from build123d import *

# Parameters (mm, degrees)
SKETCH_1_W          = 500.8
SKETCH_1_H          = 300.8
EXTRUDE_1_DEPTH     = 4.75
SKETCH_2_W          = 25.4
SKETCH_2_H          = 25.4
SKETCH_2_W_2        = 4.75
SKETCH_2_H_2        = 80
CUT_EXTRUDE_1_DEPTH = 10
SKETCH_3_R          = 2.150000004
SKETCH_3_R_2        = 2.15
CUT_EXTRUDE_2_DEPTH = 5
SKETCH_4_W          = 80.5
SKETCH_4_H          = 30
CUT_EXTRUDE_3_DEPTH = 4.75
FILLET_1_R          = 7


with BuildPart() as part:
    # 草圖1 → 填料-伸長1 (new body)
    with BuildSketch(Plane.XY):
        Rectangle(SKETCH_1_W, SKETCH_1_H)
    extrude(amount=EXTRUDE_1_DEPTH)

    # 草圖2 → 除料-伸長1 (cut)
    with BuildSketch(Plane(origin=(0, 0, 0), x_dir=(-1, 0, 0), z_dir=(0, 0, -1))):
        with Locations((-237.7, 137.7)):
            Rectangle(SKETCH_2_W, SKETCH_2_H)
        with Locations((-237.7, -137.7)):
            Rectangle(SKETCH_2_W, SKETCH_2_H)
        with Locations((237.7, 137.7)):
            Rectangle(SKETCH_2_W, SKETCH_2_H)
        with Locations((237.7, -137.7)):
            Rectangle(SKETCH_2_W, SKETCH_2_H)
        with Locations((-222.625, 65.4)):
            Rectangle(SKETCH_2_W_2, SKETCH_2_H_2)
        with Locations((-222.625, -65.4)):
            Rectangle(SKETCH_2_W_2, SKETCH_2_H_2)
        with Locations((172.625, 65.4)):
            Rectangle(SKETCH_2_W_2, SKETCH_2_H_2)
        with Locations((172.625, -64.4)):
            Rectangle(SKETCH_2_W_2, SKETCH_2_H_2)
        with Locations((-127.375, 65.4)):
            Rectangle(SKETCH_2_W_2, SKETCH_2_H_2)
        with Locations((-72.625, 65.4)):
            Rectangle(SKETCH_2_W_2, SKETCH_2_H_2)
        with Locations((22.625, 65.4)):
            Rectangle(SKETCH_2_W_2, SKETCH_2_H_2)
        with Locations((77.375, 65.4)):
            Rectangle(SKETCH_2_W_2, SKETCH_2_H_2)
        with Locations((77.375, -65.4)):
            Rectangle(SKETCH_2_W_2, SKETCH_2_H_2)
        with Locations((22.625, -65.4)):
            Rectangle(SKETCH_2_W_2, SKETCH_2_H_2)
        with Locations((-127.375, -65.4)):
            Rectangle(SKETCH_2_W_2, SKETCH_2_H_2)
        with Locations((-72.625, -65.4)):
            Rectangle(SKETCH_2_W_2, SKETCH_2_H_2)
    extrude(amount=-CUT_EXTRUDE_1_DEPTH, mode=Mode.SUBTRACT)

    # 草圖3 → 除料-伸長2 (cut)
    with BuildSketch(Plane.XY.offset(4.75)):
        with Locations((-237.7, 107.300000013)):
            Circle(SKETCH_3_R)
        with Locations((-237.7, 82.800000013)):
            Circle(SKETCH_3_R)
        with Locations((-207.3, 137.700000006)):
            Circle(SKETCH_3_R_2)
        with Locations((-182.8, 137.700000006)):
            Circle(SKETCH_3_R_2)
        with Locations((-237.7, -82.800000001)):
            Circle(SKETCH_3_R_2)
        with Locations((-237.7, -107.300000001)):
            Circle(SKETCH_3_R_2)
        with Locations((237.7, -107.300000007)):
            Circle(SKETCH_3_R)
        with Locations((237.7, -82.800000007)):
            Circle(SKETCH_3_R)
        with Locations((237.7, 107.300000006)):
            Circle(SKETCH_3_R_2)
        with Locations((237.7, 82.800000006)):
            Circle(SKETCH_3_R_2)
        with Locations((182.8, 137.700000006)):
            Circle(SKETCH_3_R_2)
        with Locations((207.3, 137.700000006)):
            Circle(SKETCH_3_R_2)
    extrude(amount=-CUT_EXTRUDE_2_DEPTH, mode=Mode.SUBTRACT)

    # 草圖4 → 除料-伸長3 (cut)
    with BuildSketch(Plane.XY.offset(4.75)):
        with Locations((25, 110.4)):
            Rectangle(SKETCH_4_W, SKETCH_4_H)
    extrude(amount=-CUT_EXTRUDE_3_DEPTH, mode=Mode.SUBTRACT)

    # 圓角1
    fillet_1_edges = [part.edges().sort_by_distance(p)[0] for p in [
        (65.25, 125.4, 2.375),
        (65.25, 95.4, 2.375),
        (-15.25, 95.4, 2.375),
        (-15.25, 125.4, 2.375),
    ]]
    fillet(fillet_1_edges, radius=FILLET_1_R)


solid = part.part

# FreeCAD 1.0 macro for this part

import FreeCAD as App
import Part
import Sketcher


def edges_at(feature, points):
    """Names of the edges that pass closest to the given points."""
    edges = feature.Shape.Edges
    near = lambda p: min(range(len(edges)), key=lambda i: edges[i].distToShape(Part.Vertex(*p))[0])
    return sorted({f"Edge{near(p) + 1}" for p in points})


def add_polygon(sketch, points):
    """Adds a closed chain of lines whose ends are joined by coincident constraints."""
    first, n = sketch.GeometryCount, len(points)
    for a, b in zip(points, points[1:] + points[:1]):
        sketch.addGeometry(Part.LineSegment(App.Vector(*a, 0), App.Vector(*b, 0)), False)
    for i in range(n):
        sketch.addConstraint(Sketcher.Constraint("Coincident", first + i, 2, first + (i + 1) % n, 1))

doc = App.newDocument("Part")
params = doc.addObject("Spreadsheet::Sheet", "Params")
for row, (alias, value) in enumerate([
    ("sketch1_width", "500.8 mm"),
    ("sketch1_height", "300.8 mm"),
    ("pad1_length", "4.75 mm"),
    ("sketch2_height", "80 mm"),
    ("sketch2_width", "25.4 mm"),
    ("sketch2_width2", "4.75 mm"),
    ("pocket1_length", "10 mm"),
    ("sketch3_diameter", "4.3 mm"),
    ("pocket2_length", "5 mm"),
    ("sketch4_height", "30 mm"),
    ("sketch4_width", "80.5 mm"),
    ("pocket3_length", "4.75 mm"),
    ("fillet_radius", "7 mm"),
], start=1):
    params.set(f"A{row}", alias)
    params.set(f"B{row}", "=" + value)
    params.setAlias(f"B{row}", alias)

body = doc.addObject("PartDesign::Body", "Body")

sketch1 = body.newObject("Sketcher::SketchObject", "Sketch")
sketch1.AttachmentSupport = (doc.getObject("XY_Plane"), [""])
sketch1.MapMode = "FlatFace"
add_polygon(sketch1, [(-250, 150), (-250, -150), (250, -150), (250, 150)])
sketch1.addConstraint([
    Sketcher.Constraint("Vertical", 0),
    Sketcher.Constraint("Horizontal", 1),
    Sketcher.Constraint("Vertical", 2),
    Sketcher.Constraint("Horizontal", 3),
    Sketcher.Constraint("Symmetric", 0, 2, 2, 2, -1, 1),
    Sketcher.Constraint("DistanceX", 1, 1, 1, 2, 500.8),
    Sketcher.Constraint("DistanceY", 0, 2, 0, 1, 300.8),
])
sketch1.setExpression("Constraints[9]", "Params.sketch1_width")
sketch1.setExpression("Constraints[10]", "Params.sketch1_height")
pad1 = body.newObject("PartDesign::Pad", "Pad")
pad1.Profile = sketch1
pad1.setExpression("Length", "Params.pad1_length")

sketch2 = body.newObject("Sketcher::SketchObject", "Sketch001")
sketch2.AttachmentSupport = (doc.getObject("XY_Plane"), [""])
sketch2.MapMode = "FlatFace"
add_polygon(sketch2, [(250.4, 150.4), (250.4, 125), (225, 125), (225, 150.4)])
add_polygon(sketch2, [(250.4, -125), (250.4, -150.4), (225, -150.4), (225, -125)])
add_polygon(sketch2, [(-225, 150.4), (-225, 125), (-250.4, 125), (-250.4, 150.4)])
add_polygon(sketch2, [(-225, -125), (-225, -150.4), (-250.4, -150.4), (-250.4, -125)])
add_polygon(sketch2, [(225, 105.4), (225, 25.4), (220.2, 25.4), (220.2, 105.4)])
add_polygon(sketch2, [(225, -25.4), (225, -105.4), (220.2, -105.4), (220.2, -25.4)])
add_polygon(sketch2, [(-170.2, 105.4), (-170.2, 25.4), (-175, 25.4), (-175, 105.4)])
add_polygon(sketch2, [(-170.2, -24.4), (-170.2, -104.4), (-175, -104.4), (-175, -24.4)])
add_polygon(sketch2, [(129.8, 105.4), (129.8, 25.4), (125, 25.4), (125, 105.4)])
add_polygon(sketch2, [(75, 105.4), (75, 25.4), (70.2, 25.4), (70.2, 105.4)])
add_polygon(sketch2, [(-20.2, 105.4), (-20.2, 25.4), (-25, 25.4), (-25, 105.4)])
add_polygon(sketch2, [(-75, 105.4), (-75, 25.4), (-79.8, 25.4), (-79.8, 105.4)])
add_polygon(sketch2, [(-75, -25.4), (-75, -105.4), (-79.8, -105.4), (-79.8, -25.4)])
add_polygon(sketch2, [(-20.2, -25.4), (-20.2, -105.4), (-25, -105.4), (-25, -25.4)])
add_polygon(sketch2, [(129.8, -25.4), (129.8, -105.4), (125, -105.4), (125, -25.4)])
add_polygon(sketch2, [(75, -25.4), (75, -105.4), (70.2, -105.4), (70.2, -25.4)])
sketch2.addConstraint([
    Sketcher.Constraint("Vertical", 0),
    Sketcher.Constraint("Horizontal", 1),
    Sketcher.Constraint("Vertical", 2),
    Sketcher.Constraint("Horizontal", 3),
    Sketcher.Constraint("Vertical", 4),
    Sketcher.Constraint("Horizontal", 5),
    Sketcher.Constraint("Vertical", 6),
    Sketcher.Constraint("Horizontal", 7),
    Sketcher.Constraint("Vertical", 8),
    Sketcher.Constraint("Horizontal", 9),
    Sketcher.Constraint("Vertical", 10),
    Sketcher.Constraint("Horizontal", 11),
    Sketcher.Constraint("Vertical", 12),
    Sketcher.Constraint("Horizontal", 13),
    Sketcher.Constraint("Vertical", 14),
    Sketcher.Constraint("Horizontal", 15),
    Sketcher.Constraint("Vertical", 16),
    Sketcher.Constraint("Horizontal", 17),
    Sketcher.Constraint("Vertical", 18),
    Sketcher.Constraint("Horizontal", 19),
    Sketcher.Constraint("Vertical", 20),
    Sketcher.Constraint("Horizontal", 21),
    Sketcher.Constraint("Vertical", 22),
    Sketcher.Constraint("Horizontal", 23),
    Sketcher.Constraint("Vertical", 24),
    Sketcher.Constraint("Horizontal", 25),
    Sketcher.Constraint("Vertical", 26),
    Sketcher.Constraint("Horizontal", 27),
    Sketcher.Constraint("Vertical", 28),
    Sketcher.Constraint("Horizontal", 29),
    Sketcher.Constraint("Vertical", 30),
    Sketcher.Constraint("Horizontal", 31),
    Sketcher.Constraint("Vertical", 32),
    Sketcher.Constraint("Horizontal", 33),
    Sketcher.Constraint("Vertical", 34),
    Sketcher.Constraint("Horizontal", 35),
    Sketcher.Constraint("Vertical", 36),
    Sketcher.Constraint("Horizontal", 37),
    Sketcher.Constraint("Vertical", 38),
    Sketcher.Constraint("Horizontal", 39),
    Sketcher.Constraint("Vertical", 40),
    Sketcher.Constraint("Horizontal", 41),
    Sketcher.Constraint("Vertical", 42),
    Sketcher.Constraint("Horizontal", 43),
    Sketcher.Constraint("Vertical", 44),
    Sketcher.Constraint("Horizontal", 45),
    Sketcher.Constraint("Vertical", 46),
    Sketcher.Constraint("Horizontal", 47),
    Sketcher.Constraint("Vertical", 48),
    Sketcher.Constraint("Horizontal", 49),
    Sketcher.Constraint("Vertical", 50),
    Sketcher.Constraint("Horizontal", 51),
    Sketcher.Constraint("Vertical", 52),
    Sketcher.Constraint("Horizontal", 53),
    Sketcher.Constraint("Vertical", 54),
    Sketcher.Constraint("Horizontal", 55),
    Sketcher.Constraint("Vertical", 56),
    Sketcher.Constraint("Horizontal", 57),
    Sketcher.Constraint("Vertical", 58),
    Sketcher.Constraint("Horizontal", 59),
    Sketcher.Constraint("Vertical", 60),
    Sketcher.Constraint("Horizontal", 61),
    Sketcher.Constraint("Vertical", 62),
    Sketcher.Constraint("Horizontal", 63),
    Sketcher.Constraint("Symmetric", 6, 2, 8, 2, -1, 1),
    Sketcher.Constraint("Symmetric", 4, 2, 10, 2, -1, 1),
    Sketcher.Constraint("Symmetric", 2, 2, 12, 2, -1, 1),
    Sketcher.Constraint("Symmetric", 0, 2, 14, 2, -1, 1),
    Sketcher.Constraint("Symmetric", 39, 2, 48, 2, -1, 1),
    Sketcher.Constraint("Symmetric", 47, 2, 60, 2, -1, 1),
    Sketcher.Constraint("Symmetric", 1, 2, 8, 2, -2),
    Sketcher.Constraint("Symmetric", 3, 2, 10, 2, -2),
    Sketcher.Constraint("Symmetric", 36, 2, 44, 2, -2),
    Sketcher.Constraint("Symmetric", 19, 2, 20, 2, -1),
    Sketcher.Constraint("Symmetric", 17, 2, 22, 2, -1),
    Sketcher.Constraint("Symmetric", 46, 2, 49, 2, -1),
    Sketcher.Constraint("Symmetric", 43, 2, 52, 2, -1),
    Sketcher.Constraint("Symmetric", 41, 2, 54, 2, -1),
    Sketcher.Constraint("Symmetric", 35, 2, 56, 2, -1),
    Sketcher.Constraint("Symmetric", 33, 2, 58, 2, -1),
    Sketcher.Constraint("Symmetric", 37, 2, 62, 2, -1),
    Sketcher.Constraint("Horizontal", 17, 2, 24, 2),
    Sketcher.Constraint("Horizontal", 19, 2, 26, 2),
    Sketcher.Constraint("Horizontal", 25, 2, 32, 2),
    Sketcher.Constraint("Horizontal", 27, 2, 34, 2),
    Sketcher.Constraint("Horizontal", 33, 2, 36, 2),
    Sketcher.Constraint("Horizontal", 35, 2, 38, 2),
    Sketcher.Constraint("Horizontal", 37, 2, 40, 2),
    Sketcher.Constraint("Horizontal", 39, 2, 42, 2),
    Sketcher.Constraint("Horizontal", 23, 2, 50, 2),
    Sketcher.Constraint("Vertical", 6, 2, 16, 2),
    Sketcher.Constraint("Vertical", 27, 2, 28, 2),
    Sketcher.Constraint("Vertical", 26, 2, 29, 2),
    Sketcher.Constraint("Equal", 23, 25),
    Sketcher.Constraint("Equal", 31, 33),
    Sketcher.Constraint("Equal", 35, 37),
    Sketcher.Constraint("Equal", 39, 41),
    Sketcher.Constraint("Equal", 43, 45),
    Sketcher.Constraint("Equal", 15, 0),
    Sketcher.Constraint("Equal", 26, 28),
    Sketcher.Constraint("DistanceY", 16, 2, 16, 1, 80.0),
    Sketcher.Constraint("DistanceX", 1, 2, 1, 1, 25.4),
    Sketcher.Constraint("DistanceY", -1, 1, 0, 2, 125.0),
    Sketcher.Constraint("DistanceX", -1, 1, 1, 2, 225.0),
    Sketcher.Constraint("DistanceX", 25, 2, -1, 1, 175.0),
    Sketcher.Constraint("DistanceX", -1, 1, 33, 2, 125.0),
    Sketcher.Constraint("DistanceX", -1, 1, 36, 2, 75.0),
    Sketcher.Constraint("DistanceX", 41, 2, -1, 1, 25.0),
    Sketcher.Constraint("DistanceX", 17, 2, 17, 1, 4.75),
    Sketcher.Constraint("DistanceY", -1, 1, 16, 2, 25.4),
    Sketcher.Constraint("DistanceY", 28, 2, -1, 1, 104.4),
])
sketch2.setExpression("Constraints[164]", "Params.sketch2_height")
sketch2.setExpression("Constraints[165]", "Params.sketch2_width")
sketch2.setExpression("Constraints[172]", "Params.sketch2_width2")
pocket1 = body.newObject("PartDesign::Pocket", "Pocket")
pocket1.Profile = sketch2
pocket1.setExpression("Length", "Params.pocket1_length")
pocket1.Reversed = True

sketch3 = body.newObject("Sketcher::SketchObject", "Sketch002")
sketch3.AttachmentSupport = (doc.getObject("XY_Plane"), [""])
sketch3.MapMode = "FlatFace"
sketch3.AttachmentOffset = App.Placement(App.Vector(0, 0, 4.75), App.Rotation())
sketch3.addGeometry([
    Part.Circle(App.Vector(-237.7, 107.3, 0), App.Vector(0, 0, 1), 2.2),
    Part.Circle(App.Vector(-237.7, 82.8, 0), App.Vector(0, 0, 1), 2.2),
    Part.Circle(App.Vector(-207.3, 137.7, 0), App.Vector(0, 0, 1), 2.1),
    Part.Circle(App.Vector(-182.8, 137.7, 0), App.Vector(0, 0, 1), 2.1),
    Part.Circle(App.Vector(-237.7, -82.8, 0), App.Vector(0, 0, 1), 2.1),
    Part.Circle(App.Vector(-237.7, -107.3, 0), App.Vector(0, 0, 1), 2.1),
    Part.Circle(App.Vector(237.7, -107.3, 0), App.Vector(0, 0, 1), 2.2),
    Part.Circle(App.Vector(237.7, -82.8, 0), App.Vector(0, 0, 1), 2.2),
    Part.Circle(App.Vector(237.7, 107.3, 0), App.Vector(0, 0, 1), 2.1),
    Part.Circle(App.Vector(237.7, 82.8, 0), App.Vector(0, 0, 1), 2.1),
    Part.Circle(App.Vector(182.8, 137.7, 0), App.Vector(0, 0, 1), 2.1),
    Part.Circle(App.Vector(207.3, 137.7, 0), App.Vector(0, 0, 1), 2.1),
], False)
sketch3.addConstraint([
    Sketcher.Constraint("Equal", 0, 1),
    Sketcher.Constraint("Equal", 1, 2),
    Sketcher.Constraint("Equal", 2, 3),
    Sketcher.Constraint("Equal", 3, 4),
    Sketcher.Constraint("Equal", 4, 5),
    Sketcher.Constraint("Equal", 5, 6),
    Sketcher.Constraint("Equal", 6, 7),
    Sketcher.Constraint("Equal", 7, 8),
    Sketcher.Constraint("Equal", 8, 9),
    Sketcher.Constraint("Equal", 9, 10),
    Sketcher.Constraint("Equal", 10, 11),
    Sketcher.Constraint("Symmetric", 0, 3, 6, 3, -1, 1),
    Sketcher.Constraint("Symmetric", 1, 3, 7, 3, -1, 1),
    Sketcher.Constraint("Symmetric", 5, 3, 8, 3, -1, 1),
    Sketcher.Constraint("Symmetric", 4, 3, 9, 3, -1, 1),
    Sketcher.Constraint("Symmetric", 5, 3, 6, 3, -2),
    Sketcher.Constraint("Symmetric", 4, 3, 7, 3, -2),
    Sketcher.Constraint("Symmetric", 3, 3, 10, 3, -2),
    Sketcher.Constraint("Symmetric", 2, 3, 11, 3, -2),
    Sketcher.Constraint("Horizontal", 2, 3, 3, 3),
    Sketcher.Constraint("Vertical", 0, 3, 1, 3),
    Sketcher.Constraint("Diameter", 0, 4.3),
    Sketcher.Constraint("DistanceY", 5, 3, 2, 3, 245.0),
    Sketcher.Constraint("DistanceX", 2, 3, 6, 3, 445.0),
    Sketcher.Constraint("DistanceX", 0, 3, -1, 1, 237.7),
    Sketcher.Constraint("DistanceY", -1, 1, 0, 3, 107.3),
    Sketcher.Constraint("DistanceY", -1, 1, 1, 3, 82.8),
    Sketcher.Constraint("DistanceX", 3, 3, -1, 1, 182.8),
])
sketch3.setExpression("Constraints[21]", "Params.sketch3_diameter")
pocket2 = body.newObject("PartDesign::Pocket", "Pocket001")
pocket2.Profile = sketch3
pocket2.setExpression("Length", "Params.pocket2_length")

sketch4 = body.newObject("Sketcher::SketchObject", "Sketch003")
sketch4.AttachmentSupport = (doc.getObject("XY_Plane"), [""])
sketch4.MapMode = "FlatFace"
sketch4.AttachmentOffset = App.Placement(App.Vector(0, 0, 4.75), App.Rotation())
add_polygon(sketch4, [(-15, 125), (-15, 95), (65, 95), (65, 125)])
sketch4.addConstraint([
    Sketcher.Constraint("Vertical", 0),
    Sketcher.Constraint("Horizontal", 1),
    Sketcher.Constraint("Vertical", 2),
    Sketcher.Constraint("Horizontal", 3),
    Sketcher.Constraint("DistanceY", 0, 2, 0, 1, 30.0),
    Sketcher.Constraint("DistanceX", 1, 1, 1, 2, 80.5),
    Sketcher.Constraint("DistanceY", -1, 1, 0, 2, 95.4),
    Sketcher.Constraint("DistanceX", 0, 2, -1, 1, 15.25),
])
sketch4.setExpression("Constraints[8]", "Params.sketch4_height")
sketch4.setExpression("Constraints[9]", "Params.sketch4_width")
pocket3 = body.newObject("PartDesign::Pocket", "Pocket002")
pocket3.Profile = sketch4
pocket3.setExpression("Length", "Params.pocket3_length")
doc.recompute()

fillet = body.newObject("PartDesign::Fillet", "Fillet")
fillet.Base = (pocket3, edges_at(pocket3, [
    (65.25, 125.4, 2.375),
    (65.25, 95.4, 2.375),
    (-15.25, 95.4, 2.375),
    (-15.25, 125.4, 2.375),
]))
fillet.setExpression("Radius", "Params.fillet_radius")

doc.recompute()
